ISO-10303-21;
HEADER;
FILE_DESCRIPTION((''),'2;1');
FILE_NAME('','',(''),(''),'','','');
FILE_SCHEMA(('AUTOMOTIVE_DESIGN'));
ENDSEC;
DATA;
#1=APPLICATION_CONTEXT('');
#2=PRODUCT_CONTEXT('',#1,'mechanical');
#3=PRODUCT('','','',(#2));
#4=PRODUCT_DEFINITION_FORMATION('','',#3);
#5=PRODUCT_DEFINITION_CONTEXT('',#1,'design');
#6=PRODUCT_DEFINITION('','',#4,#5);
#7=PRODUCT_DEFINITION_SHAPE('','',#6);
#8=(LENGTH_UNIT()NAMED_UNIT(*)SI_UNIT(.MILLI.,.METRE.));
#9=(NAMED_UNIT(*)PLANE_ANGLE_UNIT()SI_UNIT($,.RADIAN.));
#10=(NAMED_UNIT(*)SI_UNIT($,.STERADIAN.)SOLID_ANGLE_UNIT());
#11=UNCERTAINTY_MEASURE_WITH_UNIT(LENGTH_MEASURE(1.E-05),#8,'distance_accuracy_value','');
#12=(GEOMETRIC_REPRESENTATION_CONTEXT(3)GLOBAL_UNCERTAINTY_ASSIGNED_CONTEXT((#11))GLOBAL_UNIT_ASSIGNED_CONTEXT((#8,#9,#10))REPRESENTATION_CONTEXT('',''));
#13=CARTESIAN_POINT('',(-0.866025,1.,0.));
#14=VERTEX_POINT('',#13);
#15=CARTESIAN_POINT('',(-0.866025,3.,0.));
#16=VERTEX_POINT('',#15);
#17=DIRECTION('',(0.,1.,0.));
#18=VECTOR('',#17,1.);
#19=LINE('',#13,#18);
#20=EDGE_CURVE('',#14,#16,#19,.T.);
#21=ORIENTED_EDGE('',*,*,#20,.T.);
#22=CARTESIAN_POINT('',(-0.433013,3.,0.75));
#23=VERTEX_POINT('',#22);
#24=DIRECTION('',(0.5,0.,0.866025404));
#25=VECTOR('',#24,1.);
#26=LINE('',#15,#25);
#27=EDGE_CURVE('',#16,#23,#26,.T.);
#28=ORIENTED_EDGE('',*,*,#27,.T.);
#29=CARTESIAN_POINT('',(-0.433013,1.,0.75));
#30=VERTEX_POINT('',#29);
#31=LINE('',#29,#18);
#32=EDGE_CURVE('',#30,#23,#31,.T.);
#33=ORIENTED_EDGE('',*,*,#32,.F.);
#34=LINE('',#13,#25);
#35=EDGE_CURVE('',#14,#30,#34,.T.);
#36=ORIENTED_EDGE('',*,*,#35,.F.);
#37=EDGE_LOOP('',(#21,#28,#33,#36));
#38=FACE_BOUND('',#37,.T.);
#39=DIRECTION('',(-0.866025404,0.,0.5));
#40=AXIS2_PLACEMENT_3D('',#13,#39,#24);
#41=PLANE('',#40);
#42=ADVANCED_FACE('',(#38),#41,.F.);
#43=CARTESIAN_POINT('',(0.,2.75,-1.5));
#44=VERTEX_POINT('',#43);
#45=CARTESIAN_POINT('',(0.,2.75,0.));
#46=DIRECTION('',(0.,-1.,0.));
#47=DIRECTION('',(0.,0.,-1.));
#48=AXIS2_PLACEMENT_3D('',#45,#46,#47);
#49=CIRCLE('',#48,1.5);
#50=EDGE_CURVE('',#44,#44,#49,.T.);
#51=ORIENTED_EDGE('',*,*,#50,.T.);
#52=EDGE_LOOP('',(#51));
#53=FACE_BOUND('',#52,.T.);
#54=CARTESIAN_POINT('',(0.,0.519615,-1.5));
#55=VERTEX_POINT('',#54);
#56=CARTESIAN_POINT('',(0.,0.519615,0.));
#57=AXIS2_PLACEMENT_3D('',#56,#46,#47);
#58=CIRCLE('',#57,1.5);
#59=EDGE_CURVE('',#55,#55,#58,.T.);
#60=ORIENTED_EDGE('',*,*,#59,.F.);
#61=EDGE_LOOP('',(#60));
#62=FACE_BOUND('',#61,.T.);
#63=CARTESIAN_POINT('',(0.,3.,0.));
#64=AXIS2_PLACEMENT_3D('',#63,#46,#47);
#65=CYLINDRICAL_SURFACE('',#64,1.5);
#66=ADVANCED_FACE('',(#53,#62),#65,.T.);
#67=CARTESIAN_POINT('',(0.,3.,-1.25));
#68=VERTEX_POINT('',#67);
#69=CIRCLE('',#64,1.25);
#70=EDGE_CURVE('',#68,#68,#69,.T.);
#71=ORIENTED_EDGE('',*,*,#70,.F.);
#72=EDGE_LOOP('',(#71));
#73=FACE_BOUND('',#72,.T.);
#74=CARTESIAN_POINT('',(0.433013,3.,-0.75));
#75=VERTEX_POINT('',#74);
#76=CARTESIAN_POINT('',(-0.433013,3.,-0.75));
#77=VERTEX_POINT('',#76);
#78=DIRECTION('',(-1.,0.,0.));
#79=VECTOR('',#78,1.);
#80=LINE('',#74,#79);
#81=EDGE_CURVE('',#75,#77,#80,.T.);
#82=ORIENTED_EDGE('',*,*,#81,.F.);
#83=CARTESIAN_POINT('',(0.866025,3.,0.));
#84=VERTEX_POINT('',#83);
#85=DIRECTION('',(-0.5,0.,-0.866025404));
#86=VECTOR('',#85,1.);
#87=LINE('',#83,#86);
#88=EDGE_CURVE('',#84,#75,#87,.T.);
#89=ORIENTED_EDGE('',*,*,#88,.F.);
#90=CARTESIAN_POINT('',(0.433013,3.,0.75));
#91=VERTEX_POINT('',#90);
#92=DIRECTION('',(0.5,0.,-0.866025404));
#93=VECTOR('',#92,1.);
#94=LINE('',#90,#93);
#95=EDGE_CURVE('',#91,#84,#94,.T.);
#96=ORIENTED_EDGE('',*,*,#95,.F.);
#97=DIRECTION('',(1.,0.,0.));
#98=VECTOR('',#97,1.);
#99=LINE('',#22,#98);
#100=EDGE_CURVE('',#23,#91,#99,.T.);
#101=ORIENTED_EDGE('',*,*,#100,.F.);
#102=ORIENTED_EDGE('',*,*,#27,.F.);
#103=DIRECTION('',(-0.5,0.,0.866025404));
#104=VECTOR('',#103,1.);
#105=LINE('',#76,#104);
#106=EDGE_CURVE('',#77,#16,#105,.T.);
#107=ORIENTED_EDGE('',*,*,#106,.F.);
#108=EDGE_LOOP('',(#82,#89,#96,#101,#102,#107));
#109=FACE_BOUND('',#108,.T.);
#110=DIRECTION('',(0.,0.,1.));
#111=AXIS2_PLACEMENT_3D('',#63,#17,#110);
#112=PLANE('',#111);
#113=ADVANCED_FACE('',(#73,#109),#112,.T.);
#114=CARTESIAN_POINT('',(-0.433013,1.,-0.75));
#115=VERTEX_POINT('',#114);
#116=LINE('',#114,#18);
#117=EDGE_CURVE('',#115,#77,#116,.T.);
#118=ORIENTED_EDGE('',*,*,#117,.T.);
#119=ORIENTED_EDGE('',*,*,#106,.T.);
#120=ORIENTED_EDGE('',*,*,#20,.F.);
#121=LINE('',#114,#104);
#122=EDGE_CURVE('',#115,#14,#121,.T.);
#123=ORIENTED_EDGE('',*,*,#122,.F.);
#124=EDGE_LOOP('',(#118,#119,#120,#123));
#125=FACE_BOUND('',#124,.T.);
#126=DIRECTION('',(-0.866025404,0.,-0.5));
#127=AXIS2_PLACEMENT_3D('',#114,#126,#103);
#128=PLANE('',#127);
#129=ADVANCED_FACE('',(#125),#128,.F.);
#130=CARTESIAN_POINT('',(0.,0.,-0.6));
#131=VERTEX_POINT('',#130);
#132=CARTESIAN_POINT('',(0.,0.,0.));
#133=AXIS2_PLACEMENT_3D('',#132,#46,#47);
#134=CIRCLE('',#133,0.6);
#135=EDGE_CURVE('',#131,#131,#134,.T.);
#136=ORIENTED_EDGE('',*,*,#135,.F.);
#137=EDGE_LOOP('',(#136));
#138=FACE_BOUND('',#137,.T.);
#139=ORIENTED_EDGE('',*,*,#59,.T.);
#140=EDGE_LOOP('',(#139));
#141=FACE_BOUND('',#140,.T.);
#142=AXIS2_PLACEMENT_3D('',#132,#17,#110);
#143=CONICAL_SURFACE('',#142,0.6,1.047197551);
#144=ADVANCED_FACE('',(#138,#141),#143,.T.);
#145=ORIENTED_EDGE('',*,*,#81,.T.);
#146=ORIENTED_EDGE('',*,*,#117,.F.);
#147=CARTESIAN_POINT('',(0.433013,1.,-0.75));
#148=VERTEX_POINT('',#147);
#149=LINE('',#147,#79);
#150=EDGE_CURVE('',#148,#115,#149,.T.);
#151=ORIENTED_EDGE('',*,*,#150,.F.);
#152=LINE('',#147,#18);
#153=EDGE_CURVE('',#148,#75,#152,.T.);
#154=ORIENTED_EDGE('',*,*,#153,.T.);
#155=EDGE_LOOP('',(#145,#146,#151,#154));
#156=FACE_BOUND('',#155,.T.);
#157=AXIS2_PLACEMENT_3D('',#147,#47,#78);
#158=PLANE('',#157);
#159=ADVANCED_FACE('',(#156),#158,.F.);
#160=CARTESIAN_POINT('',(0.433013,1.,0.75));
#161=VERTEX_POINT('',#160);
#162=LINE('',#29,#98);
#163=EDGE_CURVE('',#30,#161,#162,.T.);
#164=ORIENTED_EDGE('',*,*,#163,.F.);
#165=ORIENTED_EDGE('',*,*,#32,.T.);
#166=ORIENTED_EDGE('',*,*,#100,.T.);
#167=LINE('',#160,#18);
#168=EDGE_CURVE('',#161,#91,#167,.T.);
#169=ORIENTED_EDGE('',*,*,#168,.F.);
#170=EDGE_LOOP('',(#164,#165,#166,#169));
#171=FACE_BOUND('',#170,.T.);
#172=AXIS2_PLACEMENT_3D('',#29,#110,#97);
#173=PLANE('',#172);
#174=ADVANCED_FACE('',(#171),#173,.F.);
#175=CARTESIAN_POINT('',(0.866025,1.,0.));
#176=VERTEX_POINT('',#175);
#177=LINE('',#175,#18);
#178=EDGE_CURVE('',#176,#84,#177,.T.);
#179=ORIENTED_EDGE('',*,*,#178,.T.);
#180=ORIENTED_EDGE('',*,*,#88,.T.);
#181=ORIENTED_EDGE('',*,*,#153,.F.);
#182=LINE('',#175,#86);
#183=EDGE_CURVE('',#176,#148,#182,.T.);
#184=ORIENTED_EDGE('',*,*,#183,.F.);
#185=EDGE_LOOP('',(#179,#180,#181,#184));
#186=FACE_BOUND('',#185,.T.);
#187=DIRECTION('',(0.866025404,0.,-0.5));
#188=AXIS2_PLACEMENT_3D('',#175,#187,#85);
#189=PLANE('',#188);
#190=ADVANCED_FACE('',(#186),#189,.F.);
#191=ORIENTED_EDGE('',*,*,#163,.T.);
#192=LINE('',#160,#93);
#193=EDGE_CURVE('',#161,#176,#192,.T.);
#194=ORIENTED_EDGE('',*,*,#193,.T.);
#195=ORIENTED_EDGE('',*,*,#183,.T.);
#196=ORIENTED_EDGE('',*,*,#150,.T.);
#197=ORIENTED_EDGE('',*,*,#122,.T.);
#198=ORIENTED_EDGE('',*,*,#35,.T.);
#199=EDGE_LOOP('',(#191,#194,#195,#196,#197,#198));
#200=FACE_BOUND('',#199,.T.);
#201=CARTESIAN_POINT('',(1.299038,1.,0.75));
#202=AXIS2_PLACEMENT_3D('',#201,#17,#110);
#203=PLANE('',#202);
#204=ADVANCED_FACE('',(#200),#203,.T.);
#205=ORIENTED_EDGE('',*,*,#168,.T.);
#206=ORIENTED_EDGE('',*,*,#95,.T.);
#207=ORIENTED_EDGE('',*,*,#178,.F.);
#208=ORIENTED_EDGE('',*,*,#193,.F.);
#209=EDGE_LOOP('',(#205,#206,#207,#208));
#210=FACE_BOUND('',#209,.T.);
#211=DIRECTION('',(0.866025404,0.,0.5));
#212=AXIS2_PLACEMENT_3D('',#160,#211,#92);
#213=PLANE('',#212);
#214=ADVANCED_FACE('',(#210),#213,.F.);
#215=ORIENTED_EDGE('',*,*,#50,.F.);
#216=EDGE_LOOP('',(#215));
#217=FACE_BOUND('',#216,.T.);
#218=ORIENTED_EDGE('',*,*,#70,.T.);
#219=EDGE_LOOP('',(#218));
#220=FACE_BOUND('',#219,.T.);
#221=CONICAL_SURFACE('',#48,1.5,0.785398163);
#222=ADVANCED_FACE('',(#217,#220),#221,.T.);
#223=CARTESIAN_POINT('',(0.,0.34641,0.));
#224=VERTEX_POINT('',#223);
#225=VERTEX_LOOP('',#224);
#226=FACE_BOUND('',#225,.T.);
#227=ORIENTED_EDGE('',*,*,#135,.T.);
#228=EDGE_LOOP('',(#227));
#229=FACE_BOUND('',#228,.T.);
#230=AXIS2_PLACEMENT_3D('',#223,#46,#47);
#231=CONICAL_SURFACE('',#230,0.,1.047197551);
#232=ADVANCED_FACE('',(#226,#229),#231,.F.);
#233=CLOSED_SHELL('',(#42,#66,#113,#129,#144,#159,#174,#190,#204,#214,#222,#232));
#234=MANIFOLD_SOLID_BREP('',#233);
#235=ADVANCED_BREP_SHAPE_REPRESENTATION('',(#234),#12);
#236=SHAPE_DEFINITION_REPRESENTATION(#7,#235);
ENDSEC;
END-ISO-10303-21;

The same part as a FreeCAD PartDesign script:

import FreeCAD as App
import Part
import Sketcher
Q = App.Units.Quantity


def add_polygon(sketch, points):
    """Adds a closed chain of lines whose ends are joined by coincident constraints."""
    first, n = sketch.GeometryCount, len(points)
    for a, b in zip(points, points[1:] + points[:1]):
        sketch.addGeometry(Part.LineSegment(App.Vector(*a, 0), App.Vector(*b, 0)), False)
    for i in range(n):
        sketch.addConstraint(Sketcher.Constraint("Coincident", first + i, 2, first + (i + 1) % n, 1))

doc = App.newDocument("Part")
body = doc.addObject("PartDesign::Body", "Body")

# Sketch on XY plane
sketch1 = body.newObject("Sketcher::SketchObject", "Sketch")
sketch1.AttachmentSupport = (doc.getObject("XY_Plane"), [""])
sketch1.MapMode = "FlatFace"
add_polygon(sketch1, [(0, 3), (0, 0.35), (0.6, 0), (1.5, 0.52), (1.5, 2.75), (1.25, 3)])  # lines 0-5
sketch1.addConstraint(Sketcher.Constraint("Vertical", 0))
sketch1.addConstraint(Sketcher.Constraint("Vertical", 3))
sketch1.addConstraint(Sketcher.Constraint("Horizontal", 5))
sketch1.addConstraint(Sketcher.Constraint("PointOnObject", 0, 2, -2))
sketch1.addConstraint(Sketcher.Constraint("PointOnObject", 1, 2, -1))
sketch1.addConstraint(Sketcher.Constraint("Angle", 1, Q("-30 deg")))
sketch1.addConstraint(Sketcher.Constraint("Angle", 2, Q("30 deg")))
sketch1.addConstraint(Sketcher.Constraint("Angle", 4, Q("135 deg")))
sketch1.addConstraint(Sketcher.Constraint("DistanceY", -1, 1, 4, 2, 3.0))
sketch1.addConstraint(Sketcher.Constraint("DistanceX", 5, 2, 5, 1, 1.25))
sketch1.addConstraint(Sketcher.Constraint("DistanceX", -1, 1, 1, 2, 0.6))
sketch1.addConstraint(Sketcher.Constraint("DistanceX", -1, 1, 2, 2, 1.5))
revolution = body.newObject("PartDesign::Revolution", "Revolution")
revolution.Profile = sketch1
revolution.ReferenceAxis = (sketch1, ["V_Axis"])
revolution.Angle = 360

# Sketch on XZ plane
sketch2 = body.newObject("Sketcher::SketchObject", "Sketch001")
sketch2.AttachmentSupport = (doc.getObject("XZ_Plane"), [""])
sketch2.MapMode = "FlatFace"
sketch2.AttachmentOffset = App.Placement(App.Vector(0, 0, -3), App.Rotation())
add_polygon(sketch2, [(0.4, 0.8), (0.9, 0), (0.4, -0.8), (-0.4, -0.8), (-0.9, 0), (-0.4, 0.8)])  # lines 0-5
sketch2.addConstraint(Sketcher.Constraint("Horizontal", 2))
sketch2.addConstraint(Sketcher.Constraint("Horizontal", 5))
sketch2.addConstraint(Sketcher.Constraint("Symmetric", 0, 2, 3, 2, -1, 1))
sketch2.addConstraint(Sketcher.Constraint("Symmetric", 1, 2, 4, 2, -1, 1))
sketch2.addConstraint(Sketcher.Constraint("PointOnObject", 0, 2, -1))
sketch2.addConstraint(Sketcher.Constraint("Parallel", 0, 3))
sketch2.addConstraint(Sketcher.Constraint("Vertical", 2, 2, 4, 2))
sketch2.addConstraint(Sketcher.Constraint("Angle", 0, Q("-60 deg")))
sketch2.addConstraint(Sketcher.Constraint("DistanceY", 2, 2, 4, 2, 1.5))
sketch2.addConstraint(Sketcher.Constraint("DistanceX", 2, 2, 2, 1, 0.866025))
pocket1 = body.newObject("PartDesign::Pocket", "Pocket")
pocket1.Profile = sketch2
pocket1.Length = 2
pocket1.Reversed = True

doc.recompute()
